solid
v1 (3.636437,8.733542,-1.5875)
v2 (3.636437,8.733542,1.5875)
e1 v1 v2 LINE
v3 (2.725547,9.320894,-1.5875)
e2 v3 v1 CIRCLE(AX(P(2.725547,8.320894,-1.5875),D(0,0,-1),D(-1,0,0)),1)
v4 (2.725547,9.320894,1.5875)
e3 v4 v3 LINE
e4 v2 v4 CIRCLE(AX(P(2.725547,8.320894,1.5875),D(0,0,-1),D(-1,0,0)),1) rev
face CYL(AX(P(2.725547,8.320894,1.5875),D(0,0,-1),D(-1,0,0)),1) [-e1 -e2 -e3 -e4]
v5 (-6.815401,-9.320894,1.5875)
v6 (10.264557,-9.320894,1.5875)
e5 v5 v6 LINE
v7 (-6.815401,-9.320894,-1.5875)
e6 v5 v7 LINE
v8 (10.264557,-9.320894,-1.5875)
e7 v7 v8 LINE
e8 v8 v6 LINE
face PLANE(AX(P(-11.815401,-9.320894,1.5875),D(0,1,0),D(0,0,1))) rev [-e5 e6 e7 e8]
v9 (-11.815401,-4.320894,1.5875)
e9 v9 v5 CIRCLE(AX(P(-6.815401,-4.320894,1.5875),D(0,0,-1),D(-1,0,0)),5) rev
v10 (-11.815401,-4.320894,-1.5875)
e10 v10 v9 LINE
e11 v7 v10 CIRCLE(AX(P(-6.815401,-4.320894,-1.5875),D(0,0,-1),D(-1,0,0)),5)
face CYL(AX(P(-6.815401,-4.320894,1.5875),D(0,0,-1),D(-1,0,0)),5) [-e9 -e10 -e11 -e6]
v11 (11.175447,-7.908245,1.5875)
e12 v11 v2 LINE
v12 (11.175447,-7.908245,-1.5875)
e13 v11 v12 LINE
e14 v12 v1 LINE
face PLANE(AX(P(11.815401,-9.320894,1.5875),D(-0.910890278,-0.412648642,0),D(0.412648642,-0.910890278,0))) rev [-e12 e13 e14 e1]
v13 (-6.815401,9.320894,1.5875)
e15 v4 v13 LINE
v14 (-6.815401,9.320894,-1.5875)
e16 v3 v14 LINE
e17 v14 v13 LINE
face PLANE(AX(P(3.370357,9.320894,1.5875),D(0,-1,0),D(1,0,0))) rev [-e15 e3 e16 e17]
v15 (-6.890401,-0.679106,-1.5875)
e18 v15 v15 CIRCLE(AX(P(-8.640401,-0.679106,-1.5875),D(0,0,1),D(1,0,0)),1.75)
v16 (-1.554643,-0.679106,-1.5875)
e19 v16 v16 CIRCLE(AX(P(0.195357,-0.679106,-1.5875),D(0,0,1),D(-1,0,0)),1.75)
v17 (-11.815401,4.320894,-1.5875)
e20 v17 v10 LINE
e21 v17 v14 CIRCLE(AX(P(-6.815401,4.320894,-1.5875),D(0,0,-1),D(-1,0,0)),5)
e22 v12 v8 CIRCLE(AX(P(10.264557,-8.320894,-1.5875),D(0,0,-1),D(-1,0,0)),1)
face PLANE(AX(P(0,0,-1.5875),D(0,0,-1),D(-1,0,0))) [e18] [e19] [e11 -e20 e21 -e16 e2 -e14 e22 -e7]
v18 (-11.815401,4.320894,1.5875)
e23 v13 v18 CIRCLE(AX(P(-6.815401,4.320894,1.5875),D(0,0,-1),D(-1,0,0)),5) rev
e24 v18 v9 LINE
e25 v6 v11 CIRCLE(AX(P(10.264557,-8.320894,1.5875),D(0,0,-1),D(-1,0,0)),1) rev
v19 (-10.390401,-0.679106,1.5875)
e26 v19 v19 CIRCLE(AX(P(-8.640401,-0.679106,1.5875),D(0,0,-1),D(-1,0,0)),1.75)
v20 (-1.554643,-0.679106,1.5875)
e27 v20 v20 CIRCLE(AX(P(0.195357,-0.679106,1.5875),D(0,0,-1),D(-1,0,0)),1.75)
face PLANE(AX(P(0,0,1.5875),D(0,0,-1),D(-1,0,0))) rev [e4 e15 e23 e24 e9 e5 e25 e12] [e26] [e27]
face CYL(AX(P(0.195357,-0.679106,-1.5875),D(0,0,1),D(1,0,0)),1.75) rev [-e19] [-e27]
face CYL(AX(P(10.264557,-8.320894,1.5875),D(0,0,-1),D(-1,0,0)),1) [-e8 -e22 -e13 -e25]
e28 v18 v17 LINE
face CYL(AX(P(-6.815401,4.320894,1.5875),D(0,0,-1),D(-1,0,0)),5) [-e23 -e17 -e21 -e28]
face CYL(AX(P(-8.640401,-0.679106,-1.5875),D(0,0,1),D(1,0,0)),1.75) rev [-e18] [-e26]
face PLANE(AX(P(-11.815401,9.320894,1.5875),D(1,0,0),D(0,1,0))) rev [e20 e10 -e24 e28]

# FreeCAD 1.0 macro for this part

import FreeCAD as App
import Part
import Sketcher

V = App.Vector
Q = App.Units.Quantity


def edges_at(feature, points):
    """Names of the edges that pass closest to the given points."""
    edges = feature.Shape.Edges
    near = lambda p: min(range(len(edges)), key=lambda i: edges[i].distToShape(Part.Vertex(*p))[0])
    return sorted({f"Edge{near(p) + 1}" for p in points})

doc = App.newDocument("Part")
body = doc.addObject("PartDesign::Body", "Body")

sketch1 = body.newObject("Sketcher::SketchObject", "Sketch")
sketch1.AttachmentSupport = (doc.getObject("XY_Plane"), [""])
sketch1.MapMode = "FlatFace"
sketch1.addGeometry([
    Part.LineSegment(V(12, -9, 0), V(3, 9, 0)),
    Part.LineSegment(V(3, 9, 0), V(-12, 9, 0)),
    Part.LineSegment(V(-12, 9, 0), V(-12, -9, 0)),
    Part.LineSegment(V(-12, -9, 0), V(12, -9, 0)),
], False)
sketch1.addConstraint([
    Sketcher.Constraint("Coincident", 0, 2, 1, 1),
    Sketcher.Constraint("Coincident", 1, 2, 2, 1),
    Sketcher.Constraint("Coincident", 2, 2, 3, 1),
    Sketcher.Constraint("Coincident", 3, 2, 0, 1),
    Sketcher.Constraint("Horizontal", 1),
    Sketcher.Constraint("Vertical", 2),
    Sketcher.Constraint("Horizontal", 3),
    Sketcher.Constraint("Symmetric", 1, 2, 3, 2, -1, 1),
    Sketcher.Constraint("DistanceX", 3, 1, 3, 2, Q("23.630802 mm")),
    Sketcher.Constraint("DistanceX", 1, 2, 1, 1, Q("15.185758 mm")),
    Sketcher.Constraint("Distance", 0, Q("20.465458 mm")),
])
pad1 = body.newObject("PartDesign::Pad", "Pad")
pad1.Profile = sketch1
pad1.Length = 3.175
pad1.Midplane = True

sketch2 = body.newObject("Sketcher::SketchObject", "Sketch001")
sketch2.AttachmentSupport = (doc.getObject("XY_Plane"), [""])
sketch2.MapMode = "FlatFace"
sketch2.AttachmentOffset = App.Placement(V(0, 0, 1.5875), App.Rotation())
sketch2.addGeometry([
    Part.Circle(V(0.2, -0.7, 0), V(0, 0, 1), 1.8),
    Part.Circle(V(-8.6, -0.7, 0), V(0, 0, 1), 1.8),
], False)
sketch2.addConstraint([
    Sketcher.Constraint("Equal", 0, 1),
    Sketcher.Constraint("Horizontal", 0, 3, 1, 3),
    Sketcher.Constraint("Diameter", 0, Q("3.5 mm")),
    Sketcher.Constraint("DistanceX", 1, 3, -1, 1, Q("8.640401 mm")),
    Sketcher.Constraint("DistanceX", 1, 3, 0, 3, Q("8.835758 mm")),
    Sketcher.Constraint("DistanceY", 0, 3, -1, 1, Q("0.679106 mm")),
])
pocket1 = body.newObject("PartDesign::Pocket", "Pocket")
pocket1.Profile = sketch2
pocket1.Type = "ThroughAll"
pocket1.Midplane = True
doc.recompute()

fillet = body.newObject("PartDesign::Fillet", "Fillet")
fillet.Base = (pocket1, edges_at(pocket1, [(3.37, 9.321, 0), (11.815, -9.321, 0)]))
fillet.Radius = 1
doc.recompute()

fillet2 = body.newObject("PartDesign::Fillet", "Fillet001")
fillet2.Base = (fillet, edges_at(fillet, [(-11.815, -9.321, 0), (-11.815, 9.321, 0)]))
fillet2.Radius = 5

doc.recompute()
